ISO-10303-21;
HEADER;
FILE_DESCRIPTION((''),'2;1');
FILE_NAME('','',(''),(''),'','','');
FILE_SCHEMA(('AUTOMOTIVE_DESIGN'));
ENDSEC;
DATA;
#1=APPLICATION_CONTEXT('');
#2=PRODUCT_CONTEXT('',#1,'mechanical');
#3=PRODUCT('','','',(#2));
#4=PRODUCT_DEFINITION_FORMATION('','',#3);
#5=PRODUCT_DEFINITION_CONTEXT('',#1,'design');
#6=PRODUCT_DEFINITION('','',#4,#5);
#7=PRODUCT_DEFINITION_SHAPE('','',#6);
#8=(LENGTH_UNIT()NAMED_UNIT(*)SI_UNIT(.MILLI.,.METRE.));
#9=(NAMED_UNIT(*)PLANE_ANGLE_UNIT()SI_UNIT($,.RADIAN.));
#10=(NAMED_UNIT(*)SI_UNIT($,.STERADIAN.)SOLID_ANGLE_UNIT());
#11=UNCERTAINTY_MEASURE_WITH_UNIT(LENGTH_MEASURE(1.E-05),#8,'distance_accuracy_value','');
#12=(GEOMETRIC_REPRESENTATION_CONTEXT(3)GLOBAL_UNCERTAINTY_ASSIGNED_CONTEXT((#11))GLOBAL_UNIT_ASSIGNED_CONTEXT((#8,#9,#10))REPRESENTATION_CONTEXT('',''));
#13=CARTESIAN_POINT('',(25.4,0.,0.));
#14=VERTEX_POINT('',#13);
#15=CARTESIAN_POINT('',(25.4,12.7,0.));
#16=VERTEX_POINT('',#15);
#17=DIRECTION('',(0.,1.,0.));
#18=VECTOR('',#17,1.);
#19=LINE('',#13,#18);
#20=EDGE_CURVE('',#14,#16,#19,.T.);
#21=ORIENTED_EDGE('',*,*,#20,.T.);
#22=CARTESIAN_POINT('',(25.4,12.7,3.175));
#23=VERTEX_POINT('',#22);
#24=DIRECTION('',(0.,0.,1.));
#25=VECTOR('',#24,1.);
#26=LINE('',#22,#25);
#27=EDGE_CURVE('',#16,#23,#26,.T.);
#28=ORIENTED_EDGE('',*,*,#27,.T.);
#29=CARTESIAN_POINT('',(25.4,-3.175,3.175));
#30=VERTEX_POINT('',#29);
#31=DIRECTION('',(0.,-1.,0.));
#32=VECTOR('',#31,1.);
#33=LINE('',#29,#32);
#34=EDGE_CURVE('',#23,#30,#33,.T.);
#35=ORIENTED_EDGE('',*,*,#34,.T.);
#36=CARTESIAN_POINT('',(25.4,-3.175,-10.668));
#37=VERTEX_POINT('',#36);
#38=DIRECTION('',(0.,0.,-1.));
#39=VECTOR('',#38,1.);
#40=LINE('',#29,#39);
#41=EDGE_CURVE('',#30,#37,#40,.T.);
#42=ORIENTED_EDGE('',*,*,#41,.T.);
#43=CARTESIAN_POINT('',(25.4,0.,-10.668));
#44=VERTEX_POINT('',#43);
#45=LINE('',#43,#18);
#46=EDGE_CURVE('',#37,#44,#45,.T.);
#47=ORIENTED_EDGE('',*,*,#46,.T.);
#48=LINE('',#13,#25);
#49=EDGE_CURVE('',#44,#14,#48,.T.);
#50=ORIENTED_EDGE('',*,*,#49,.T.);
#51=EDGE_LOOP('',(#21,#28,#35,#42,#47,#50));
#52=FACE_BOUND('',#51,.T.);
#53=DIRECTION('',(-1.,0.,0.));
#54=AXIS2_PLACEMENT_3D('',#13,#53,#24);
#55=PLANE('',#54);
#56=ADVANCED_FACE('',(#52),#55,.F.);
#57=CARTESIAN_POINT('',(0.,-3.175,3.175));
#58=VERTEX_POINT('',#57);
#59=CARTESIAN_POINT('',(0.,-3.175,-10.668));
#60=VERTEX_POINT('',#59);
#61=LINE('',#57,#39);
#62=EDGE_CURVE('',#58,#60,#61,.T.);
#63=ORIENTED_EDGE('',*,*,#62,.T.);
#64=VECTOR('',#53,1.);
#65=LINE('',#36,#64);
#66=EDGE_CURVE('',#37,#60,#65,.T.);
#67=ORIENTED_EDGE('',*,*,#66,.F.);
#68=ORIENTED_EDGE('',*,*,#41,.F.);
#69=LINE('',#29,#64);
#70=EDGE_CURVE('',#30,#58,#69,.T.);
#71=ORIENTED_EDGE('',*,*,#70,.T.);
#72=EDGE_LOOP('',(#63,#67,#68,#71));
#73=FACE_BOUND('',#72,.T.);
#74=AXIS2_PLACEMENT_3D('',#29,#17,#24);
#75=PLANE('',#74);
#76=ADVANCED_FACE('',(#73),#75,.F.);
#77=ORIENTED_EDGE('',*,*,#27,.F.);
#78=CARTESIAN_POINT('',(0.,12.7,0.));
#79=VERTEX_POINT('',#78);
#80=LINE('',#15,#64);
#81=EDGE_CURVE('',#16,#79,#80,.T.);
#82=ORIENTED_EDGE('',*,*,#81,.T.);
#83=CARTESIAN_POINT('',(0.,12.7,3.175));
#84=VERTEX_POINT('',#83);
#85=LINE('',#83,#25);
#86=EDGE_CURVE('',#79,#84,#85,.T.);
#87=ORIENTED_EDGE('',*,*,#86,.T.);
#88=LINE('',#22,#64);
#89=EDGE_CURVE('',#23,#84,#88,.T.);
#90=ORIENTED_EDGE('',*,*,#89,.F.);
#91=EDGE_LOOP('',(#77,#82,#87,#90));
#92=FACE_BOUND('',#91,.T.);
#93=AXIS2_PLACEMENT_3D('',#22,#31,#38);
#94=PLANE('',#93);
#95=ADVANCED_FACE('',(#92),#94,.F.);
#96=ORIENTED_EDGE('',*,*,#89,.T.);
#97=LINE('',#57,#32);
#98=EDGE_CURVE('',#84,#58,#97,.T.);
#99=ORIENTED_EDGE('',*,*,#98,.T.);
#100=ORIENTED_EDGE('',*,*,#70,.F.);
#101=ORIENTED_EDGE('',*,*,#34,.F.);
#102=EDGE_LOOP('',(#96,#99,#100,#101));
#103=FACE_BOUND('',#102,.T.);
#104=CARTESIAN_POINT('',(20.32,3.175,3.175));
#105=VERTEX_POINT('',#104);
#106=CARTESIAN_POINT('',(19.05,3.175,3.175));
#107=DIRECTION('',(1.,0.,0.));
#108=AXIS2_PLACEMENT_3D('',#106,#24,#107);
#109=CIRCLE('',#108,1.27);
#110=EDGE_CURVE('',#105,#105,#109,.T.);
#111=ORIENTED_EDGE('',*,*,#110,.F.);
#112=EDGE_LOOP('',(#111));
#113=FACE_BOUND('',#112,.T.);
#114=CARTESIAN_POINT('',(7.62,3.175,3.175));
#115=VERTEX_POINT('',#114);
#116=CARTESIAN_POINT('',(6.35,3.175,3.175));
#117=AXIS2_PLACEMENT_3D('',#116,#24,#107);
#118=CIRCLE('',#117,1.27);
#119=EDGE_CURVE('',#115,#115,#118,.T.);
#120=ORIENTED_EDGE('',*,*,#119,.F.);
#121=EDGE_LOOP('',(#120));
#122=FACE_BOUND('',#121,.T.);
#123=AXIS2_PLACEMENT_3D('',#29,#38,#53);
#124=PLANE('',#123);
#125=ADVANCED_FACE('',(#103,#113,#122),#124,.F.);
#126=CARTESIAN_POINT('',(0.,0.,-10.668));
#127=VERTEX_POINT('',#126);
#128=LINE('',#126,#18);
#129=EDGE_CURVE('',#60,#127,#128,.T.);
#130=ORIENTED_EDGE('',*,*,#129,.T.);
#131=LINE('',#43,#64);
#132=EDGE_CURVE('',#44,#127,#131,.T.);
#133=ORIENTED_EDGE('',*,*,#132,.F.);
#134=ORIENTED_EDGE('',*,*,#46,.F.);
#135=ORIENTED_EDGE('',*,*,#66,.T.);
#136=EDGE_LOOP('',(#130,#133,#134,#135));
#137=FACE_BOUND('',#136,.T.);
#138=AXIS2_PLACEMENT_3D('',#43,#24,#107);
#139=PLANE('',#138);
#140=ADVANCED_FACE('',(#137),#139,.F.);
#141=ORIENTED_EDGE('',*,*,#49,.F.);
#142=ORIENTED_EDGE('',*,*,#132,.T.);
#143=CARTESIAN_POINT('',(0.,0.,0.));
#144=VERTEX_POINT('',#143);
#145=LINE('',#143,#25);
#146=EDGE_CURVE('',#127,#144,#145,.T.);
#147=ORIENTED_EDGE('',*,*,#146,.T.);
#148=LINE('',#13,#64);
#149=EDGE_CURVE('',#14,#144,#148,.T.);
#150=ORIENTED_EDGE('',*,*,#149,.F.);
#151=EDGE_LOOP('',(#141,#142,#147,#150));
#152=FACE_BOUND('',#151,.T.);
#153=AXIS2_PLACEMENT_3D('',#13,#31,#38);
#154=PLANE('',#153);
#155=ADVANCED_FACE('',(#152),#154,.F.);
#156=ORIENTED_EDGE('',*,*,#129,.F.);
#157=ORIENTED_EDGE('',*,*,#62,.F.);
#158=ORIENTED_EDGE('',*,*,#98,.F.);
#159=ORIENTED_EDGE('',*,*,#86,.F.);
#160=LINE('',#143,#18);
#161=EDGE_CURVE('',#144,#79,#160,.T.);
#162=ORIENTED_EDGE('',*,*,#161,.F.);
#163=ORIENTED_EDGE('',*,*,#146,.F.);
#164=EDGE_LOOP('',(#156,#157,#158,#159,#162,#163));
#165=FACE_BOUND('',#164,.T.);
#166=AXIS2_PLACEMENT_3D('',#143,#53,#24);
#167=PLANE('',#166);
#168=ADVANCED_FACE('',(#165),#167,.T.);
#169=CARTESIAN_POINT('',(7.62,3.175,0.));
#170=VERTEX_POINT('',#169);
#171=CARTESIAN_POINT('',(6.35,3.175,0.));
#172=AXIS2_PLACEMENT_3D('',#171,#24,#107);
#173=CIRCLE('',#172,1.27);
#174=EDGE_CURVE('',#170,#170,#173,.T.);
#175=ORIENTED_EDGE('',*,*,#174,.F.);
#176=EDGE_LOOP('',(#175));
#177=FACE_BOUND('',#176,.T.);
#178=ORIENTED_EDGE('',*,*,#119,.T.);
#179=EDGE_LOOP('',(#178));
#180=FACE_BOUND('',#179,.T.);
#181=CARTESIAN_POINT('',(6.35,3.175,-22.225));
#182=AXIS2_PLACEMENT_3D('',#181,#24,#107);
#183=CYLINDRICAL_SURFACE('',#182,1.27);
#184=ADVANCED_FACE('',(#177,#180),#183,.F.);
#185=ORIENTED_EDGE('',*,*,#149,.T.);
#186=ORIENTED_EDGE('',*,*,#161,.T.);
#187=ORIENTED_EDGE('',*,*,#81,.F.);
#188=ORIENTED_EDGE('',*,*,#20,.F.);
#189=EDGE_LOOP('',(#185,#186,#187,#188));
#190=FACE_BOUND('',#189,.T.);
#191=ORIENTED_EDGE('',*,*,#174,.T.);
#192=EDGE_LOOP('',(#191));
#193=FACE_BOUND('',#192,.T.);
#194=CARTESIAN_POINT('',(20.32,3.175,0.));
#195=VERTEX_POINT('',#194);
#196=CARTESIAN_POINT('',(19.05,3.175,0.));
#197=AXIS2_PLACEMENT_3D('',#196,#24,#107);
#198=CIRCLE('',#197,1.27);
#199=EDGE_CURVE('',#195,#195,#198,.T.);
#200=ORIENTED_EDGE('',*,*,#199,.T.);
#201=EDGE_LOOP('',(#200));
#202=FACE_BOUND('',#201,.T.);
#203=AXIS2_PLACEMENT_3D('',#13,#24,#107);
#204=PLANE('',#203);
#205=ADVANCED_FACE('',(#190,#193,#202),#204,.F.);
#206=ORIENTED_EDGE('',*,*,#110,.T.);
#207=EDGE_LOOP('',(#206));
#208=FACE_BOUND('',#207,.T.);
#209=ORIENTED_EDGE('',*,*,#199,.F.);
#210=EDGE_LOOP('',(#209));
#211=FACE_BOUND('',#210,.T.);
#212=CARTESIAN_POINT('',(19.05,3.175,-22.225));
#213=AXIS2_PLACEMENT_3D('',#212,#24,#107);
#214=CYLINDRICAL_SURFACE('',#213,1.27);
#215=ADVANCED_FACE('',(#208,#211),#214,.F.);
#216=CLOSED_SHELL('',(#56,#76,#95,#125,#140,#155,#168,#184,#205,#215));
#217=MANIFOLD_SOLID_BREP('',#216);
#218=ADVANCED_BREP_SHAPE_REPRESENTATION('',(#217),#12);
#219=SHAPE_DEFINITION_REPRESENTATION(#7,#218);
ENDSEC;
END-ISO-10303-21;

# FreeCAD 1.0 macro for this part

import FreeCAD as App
import Part
import Sketcher

V = App.Vector
Q = App.Units.Quantity


def add_polygon(sketch, points):
    """Adds a closed chain of lines whose ends are joined by coincident constraints."""
    first, n = sketch.GeometryCount, len(points)
    for a, b in zip(points, points[1:] + points[:1]):
        sketch.addGeometry(Part.LineSegment(App.Vector(*a, 0), App.Vector(*b, 0)), False)
    for i in range(n):
        sketch.addConstraint(Sketcher.Constraint("Coincident", first + i, 2, first + (i + 1) % n, 1))

doc = App.newDocument("Part")
body = doc.addObject("PartDesign::Body", "Body")

# Sketch on YZ plane
sketch1 = doc.addObject("Sketcher::SketchObject", "Sketch")
body.addObject(sketch1)
sketch1.AttachmentSupport = (doc.YZ_Plane, [""])
sketch1.MapMode = "FlatFace"
add_polygon(sketch1, [(0, 0), (12.7, 0), (12.7, 3.2), (-3.2, 3.2), (-3.2, -10.7), (0, -10.7)])  # lines 0-5
sketch1.addConstraint([
    Sketcher.Constraint("Horizontal", 0),
    Sketcher.Constraint("Vertical", 1),
    Sketcher.Constraint("Horizontal", 2),
    Sketcher.Constraint("Vertical", 3),
    Sketcher.Constraint("Horizontal", 4),
    Sketcher.Constraint("Vertical", 5),
    Sketcher.Constraint("Coincident", 5, 2, -1, 1),
    Sketcher.Constraint("Equal", 4, 1),
    Sketcher.Constraint("DistanceX", 0, 1, 0, 2, Q("0.5 in")),
    Sketcher.Constraint("DistanceY", 5, 1, 5, 2, Q("0.42 in")),
    Sketcher.Constraint("DistanceX", 2, 2, 2, 1, Q("0.625 in")),
])
pad1 = doc.addObject("PartDesign::Pad", "Pad")
body.addObject(pad1)
pad1.Profile = sketch1
pad1.Length = Q("1 in")

# Sketch on XY plane
sketch2 = doc.addObject("Sketcher::SketchObject", "Sketch001")
body.addObject(sketch2)
sketch2.AttachmentSupport = (doc.XY_Plane, [""])
sketch2.MapMode = "FlatFace"
sketch2.AttachmentOffset = App.Placement(V(0, 0, 0.125 * 25.4), App.Rotation())
sketch2.addGeometry([
    Part.Circle(V(6.3, 3.2, 0), V(0, 0, 1), 1.3),
    Part.Circle(V(19.1, 3.2, 0), V(0, 0, 1), 1.3),
], False)
sketch2.addConstraint([
    Sketcher.Constraint("Equal", 0, 1),
    Sketcher.Constraint("Horizontal", 0, 3, 1, 3),
    Sketcher.Constraint("Diameter", 0, Q("0.1 in")),
    Sketcher.Constraint("DistanceX", 0, 3, 1, 3, Q("0.5 in")),
    Sketcher.Constraint("DistanceX", -1, 1, 0, 3, Q("0.25 in")),
    Sketcher.Constraint("DistanceY", -1, 1, 0, 3, Q("0.125 in")),
])
pocket1 = doc.addObject("PartDesign::Pocket", "Pocket")
body.addObject(pocket1)
pocket1.Profile = sketch2
pocket1.Length = Q("1 in")

doc.recompute()
